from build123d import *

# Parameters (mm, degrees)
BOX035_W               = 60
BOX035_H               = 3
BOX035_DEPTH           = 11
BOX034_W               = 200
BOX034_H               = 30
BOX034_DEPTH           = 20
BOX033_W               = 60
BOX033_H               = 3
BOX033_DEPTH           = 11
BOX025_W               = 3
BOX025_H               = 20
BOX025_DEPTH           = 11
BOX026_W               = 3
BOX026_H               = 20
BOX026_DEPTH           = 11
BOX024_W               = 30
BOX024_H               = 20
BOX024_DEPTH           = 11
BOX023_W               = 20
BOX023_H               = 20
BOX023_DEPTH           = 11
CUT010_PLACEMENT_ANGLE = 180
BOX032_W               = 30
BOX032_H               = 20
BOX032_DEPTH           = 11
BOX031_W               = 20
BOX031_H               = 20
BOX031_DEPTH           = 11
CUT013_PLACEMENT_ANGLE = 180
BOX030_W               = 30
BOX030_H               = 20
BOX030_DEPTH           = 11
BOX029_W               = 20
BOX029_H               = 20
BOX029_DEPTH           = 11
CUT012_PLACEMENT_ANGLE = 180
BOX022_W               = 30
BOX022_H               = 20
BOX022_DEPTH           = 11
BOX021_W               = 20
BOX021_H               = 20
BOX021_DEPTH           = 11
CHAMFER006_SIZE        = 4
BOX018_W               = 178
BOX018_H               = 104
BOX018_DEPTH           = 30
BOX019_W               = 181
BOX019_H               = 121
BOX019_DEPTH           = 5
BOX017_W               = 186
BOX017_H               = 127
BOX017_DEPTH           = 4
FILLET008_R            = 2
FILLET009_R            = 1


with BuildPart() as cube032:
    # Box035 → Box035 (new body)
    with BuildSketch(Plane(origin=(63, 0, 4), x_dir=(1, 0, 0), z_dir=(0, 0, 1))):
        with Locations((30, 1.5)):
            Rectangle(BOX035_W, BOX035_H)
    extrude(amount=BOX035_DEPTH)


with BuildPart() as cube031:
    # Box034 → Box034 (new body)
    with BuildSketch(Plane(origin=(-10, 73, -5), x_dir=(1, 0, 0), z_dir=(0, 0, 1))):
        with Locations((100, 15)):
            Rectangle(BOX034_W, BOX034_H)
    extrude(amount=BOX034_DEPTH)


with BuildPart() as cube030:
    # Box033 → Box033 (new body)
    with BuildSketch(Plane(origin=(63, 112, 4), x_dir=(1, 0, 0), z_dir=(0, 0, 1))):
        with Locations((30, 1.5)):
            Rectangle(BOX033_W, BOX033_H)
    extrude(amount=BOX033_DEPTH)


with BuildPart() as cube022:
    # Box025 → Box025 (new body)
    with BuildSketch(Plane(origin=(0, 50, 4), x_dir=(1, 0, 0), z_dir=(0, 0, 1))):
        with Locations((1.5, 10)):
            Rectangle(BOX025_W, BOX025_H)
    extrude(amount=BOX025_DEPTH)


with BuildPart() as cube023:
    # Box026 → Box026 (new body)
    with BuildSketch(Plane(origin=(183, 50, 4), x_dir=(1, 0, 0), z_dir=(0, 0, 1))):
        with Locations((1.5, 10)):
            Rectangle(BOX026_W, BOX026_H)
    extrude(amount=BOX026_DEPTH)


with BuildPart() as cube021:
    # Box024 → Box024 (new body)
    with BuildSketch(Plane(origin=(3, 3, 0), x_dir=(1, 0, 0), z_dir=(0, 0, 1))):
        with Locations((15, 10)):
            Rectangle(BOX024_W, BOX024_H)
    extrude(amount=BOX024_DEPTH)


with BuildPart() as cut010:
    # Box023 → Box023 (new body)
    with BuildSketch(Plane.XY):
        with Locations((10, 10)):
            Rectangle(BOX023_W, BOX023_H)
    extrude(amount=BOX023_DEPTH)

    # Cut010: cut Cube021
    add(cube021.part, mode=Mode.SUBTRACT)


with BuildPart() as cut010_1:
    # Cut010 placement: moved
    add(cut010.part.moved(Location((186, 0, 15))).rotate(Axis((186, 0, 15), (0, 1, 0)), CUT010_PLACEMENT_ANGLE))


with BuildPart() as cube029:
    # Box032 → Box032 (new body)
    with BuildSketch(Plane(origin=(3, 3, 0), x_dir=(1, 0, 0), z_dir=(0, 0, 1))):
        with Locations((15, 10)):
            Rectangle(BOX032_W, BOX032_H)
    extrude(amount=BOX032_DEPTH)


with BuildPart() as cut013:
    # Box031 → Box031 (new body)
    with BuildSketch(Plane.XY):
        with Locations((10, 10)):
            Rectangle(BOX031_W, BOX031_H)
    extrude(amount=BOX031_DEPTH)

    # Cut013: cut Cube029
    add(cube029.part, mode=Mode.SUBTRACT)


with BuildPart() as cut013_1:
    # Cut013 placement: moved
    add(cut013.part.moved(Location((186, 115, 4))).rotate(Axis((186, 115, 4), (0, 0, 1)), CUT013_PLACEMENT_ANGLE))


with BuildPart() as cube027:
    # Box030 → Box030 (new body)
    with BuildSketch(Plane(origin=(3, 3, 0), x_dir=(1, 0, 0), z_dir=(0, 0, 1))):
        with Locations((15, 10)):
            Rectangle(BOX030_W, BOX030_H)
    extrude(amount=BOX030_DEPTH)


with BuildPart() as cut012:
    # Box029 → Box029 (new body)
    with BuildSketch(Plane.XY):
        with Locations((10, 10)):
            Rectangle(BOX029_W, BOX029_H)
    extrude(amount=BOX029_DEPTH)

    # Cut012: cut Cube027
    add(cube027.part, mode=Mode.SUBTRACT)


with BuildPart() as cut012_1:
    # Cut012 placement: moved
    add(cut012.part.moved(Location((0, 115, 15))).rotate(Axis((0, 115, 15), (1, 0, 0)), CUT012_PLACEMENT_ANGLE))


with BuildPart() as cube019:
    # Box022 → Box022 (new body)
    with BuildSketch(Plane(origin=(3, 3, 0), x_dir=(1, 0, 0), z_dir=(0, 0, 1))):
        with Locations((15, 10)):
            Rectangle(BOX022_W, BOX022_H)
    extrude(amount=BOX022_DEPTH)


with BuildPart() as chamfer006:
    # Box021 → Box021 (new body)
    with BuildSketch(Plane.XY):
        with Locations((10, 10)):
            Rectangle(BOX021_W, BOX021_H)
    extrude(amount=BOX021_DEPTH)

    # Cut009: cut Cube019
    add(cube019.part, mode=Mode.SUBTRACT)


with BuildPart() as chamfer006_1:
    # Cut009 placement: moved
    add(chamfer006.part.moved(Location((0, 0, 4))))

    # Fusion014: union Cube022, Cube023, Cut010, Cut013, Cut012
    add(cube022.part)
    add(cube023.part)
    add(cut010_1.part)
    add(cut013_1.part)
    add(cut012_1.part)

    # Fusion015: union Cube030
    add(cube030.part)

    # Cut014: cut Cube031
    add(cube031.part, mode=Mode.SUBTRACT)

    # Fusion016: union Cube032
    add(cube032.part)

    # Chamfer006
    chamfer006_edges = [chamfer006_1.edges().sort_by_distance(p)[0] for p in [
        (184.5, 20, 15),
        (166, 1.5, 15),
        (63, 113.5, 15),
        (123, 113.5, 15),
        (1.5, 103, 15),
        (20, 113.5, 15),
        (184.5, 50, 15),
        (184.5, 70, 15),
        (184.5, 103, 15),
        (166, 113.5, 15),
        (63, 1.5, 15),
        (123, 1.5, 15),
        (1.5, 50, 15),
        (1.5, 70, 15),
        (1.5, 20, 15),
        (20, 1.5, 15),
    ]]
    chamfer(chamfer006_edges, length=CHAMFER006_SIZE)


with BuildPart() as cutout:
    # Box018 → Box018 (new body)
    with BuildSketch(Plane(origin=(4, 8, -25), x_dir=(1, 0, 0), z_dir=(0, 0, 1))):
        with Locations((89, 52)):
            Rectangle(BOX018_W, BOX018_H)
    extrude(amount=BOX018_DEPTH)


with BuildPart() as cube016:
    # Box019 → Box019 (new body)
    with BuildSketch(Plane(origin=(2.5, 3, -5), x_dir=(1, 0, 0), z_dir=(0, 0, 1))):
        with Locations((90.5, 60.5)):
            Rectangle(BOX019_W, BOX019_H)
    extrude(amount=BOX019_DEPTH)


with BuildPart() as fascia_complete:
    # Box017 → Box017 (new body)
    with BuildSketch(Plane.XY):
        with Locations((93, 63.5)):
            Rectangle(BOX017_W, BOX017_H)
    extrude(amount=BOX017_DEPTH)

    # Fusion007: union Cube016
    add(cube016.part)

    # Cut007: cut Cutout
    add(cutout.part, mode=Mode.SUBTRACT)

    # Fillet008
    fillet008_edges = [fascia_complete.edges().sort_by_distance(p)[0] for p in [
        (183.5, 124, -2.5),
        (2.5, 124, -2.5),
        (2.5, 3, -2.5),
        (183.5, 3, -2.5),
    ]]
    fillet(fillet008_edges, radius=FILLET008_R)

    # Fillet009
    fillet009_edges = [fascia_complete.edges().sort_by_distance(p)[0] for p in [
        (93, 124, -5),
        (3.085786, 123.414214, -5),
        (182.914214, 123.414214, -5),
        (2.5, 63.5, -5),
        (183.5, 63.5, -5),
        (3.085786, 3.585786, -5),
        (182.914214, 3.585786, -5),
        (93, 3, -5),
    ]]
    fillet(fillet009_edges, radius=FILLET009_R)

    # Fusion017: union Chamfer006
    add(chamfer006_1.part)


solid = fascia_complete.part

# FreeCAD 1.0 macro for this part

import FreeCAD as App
import Part
import Sketcher

V = App.Vector
Q = App.Units.Quantity


def edges_at(feature, points):
    """Names of the edges that pass closest to the given points."""
    edges = feature.Shape.Edges
    near = lambda p: min(range(len(edges)), key=lambda i: edges[i].distToShape(Part.Vertex(*p))[0])
    return sorted({f"Edge{near(p) + 1}" for p in points})


def add_polygon(sketch, points):
    """Adds a closed chain of lines whose ends are joined by coincident constraints."""
    first, n = sketch.GeometryCount, len(points)
    for a, b in zip(points, points[1:] + points[:1]):
        sketch.addGeometry(Part.LineSegment(App.Vector(*a, 0), App.Vector(*b, 0)), False)
    for i in range(n):
        sketch.addConstraint(Sketcher.Constraint("Coincident", first + i, 2, first + (i + 1) % n, 1))

doc = App.newDocument("Part")
body = doc.addObject("PartDesign::Body", "Body")

sketch1 = body.newObject("Sketcher::SketchObject", "Sketch")
sketch1.AttachmentSupport = (doc.getObject("XY_Plane"), [""])
sketch1.MapMode = "FlatFace"
sketch1.AttachmentOffset = App.Placement(V(0, 0, 4), App.Rotation())
add_polygon(sketch1, [(63, 3), (63, 0), (123, 0), (123, 3)])
sketch1.addConstraint(Sketcher.Constraint("Vertical", 0))
sketch1.addConstraint(Sketcher.Constraint("Horizontal", 1))
sketch1.addConstraint(Sketcher.Constraint("Vertical", 2))
sketch1.addConstraint(Sketcher.Constraint("Horizontal", 3))
sketch1.addConstraint(Sketcher.Constraint("PointOnObject", 0, 2, -1))
sketch1.addConstraint(Sketcher.Constraint("DistanceX", 1, 1, 1, 2, Q("60 mm")))
sketch1.addConstraint(Sketcher.Constraint("DistanceY", 0, 2, 0, 1, Q("3 mm")))
sketch1.addConstraint(Sketcher.Constraint("DistanceX", -1, 1, 0, 2, Q("63 mm")))
pad1 = body.newObject("PartDesign::Pad", "Pad")
pad1.Profile = sketch1
pad1.Length = 11
body2 = doc.addObject("PartDesign::Body", "Body001")

sketch2 = body2.newObject("Sketcher::SketchObject", "Sketch001")
sketch2.AttachmentSupport = (doc.getObject("XY_Plane001"), [""])
sketch2.MapMode = "FlatFace"
sketch2.AttachmentOffset = App.Placement(V(0, 0, -5), App.Rotation())
add_polygon(sketch2, [(-10, 103), (-10, 73), (190, 73), (190, 103)])
sketch2.addConstraint(Sketcher.Constraint("Vertical", 0))
sketch2.addConstraint(Sketcher.Constraint("Horizontal", 1))
sketch2.addConstraint(Sketcher.Constraint("Vertical", 2))
sketch2.addConstraint(Sketcher.Constraint("Horizontal", 3))
sketch2.addConstraint(Sketcher.Constraint("DistanceX", 1, 1, 1, 2, Q("200 mm")))
sketch2.addConstraint(Sketcher.Constraint("DistanceY", 0, 2, 0, 1, Q("30 mm")))
sketch2.addConstraint(Sketcher.Constraint("DistanceX", 0, 2, -1, 1, Q("10 mm")))
sketch2.addConstraint(Sketcher.Constraint("DistanceY", -1, 1, 0, 2, Q("73 mm")))
pad2 = body2.newObject("PartDesign::Pad", "Pad001")
pad2.Profile = sketch2
pad2.Length = 20
body3 = doc.addObject("PartDesign::Body", "Body002")

sketch3 = body3.newObject("Sketcher::SketchObject", "Sketch002")
sketch3.AttachmentSupport = (doc.getObject("XY_Plane002"), [""])
sketch3.MapMode = "FlatFace"
sketch3.AttachmentOffset = App.Placement(V(0, 0, 4), App.Rotation())
add_polygon(sketch3, [(63, 115), (63, 112), (123, 112), (123, 115)])
sketch3.addConstraint(Sketcher.Constraint("Vertical", 0))
sketch3.addConstraint(Sketcher.Constraint("Horizontal", 1))
sketch3.addConstraint(Sketcher.Constraint("Vertical", 2))
sketch3.addConstraint(Sketcher.Constraint("Horizontal", 3))
sketch3.addConstraint(Sketcher.Constraint("DistanceX", 1, 1, 1, 2, Q("60 mm")))
sketch3.addConstraint(Sketcher.Constraint("DistanceY", 0, 2, 0, 1, Q("3 mm")))
sketch3.addConstraint(Sketcher.Constraint("DistanceX", -1, 1, 0, 2, Q("63 mm")))
sketch3.addConstraint(Sketcher.Constraint("DistanceY", -1, 1, 0, 2, Q("112 mm")))
pad3 = body3.newObject("PartDesign::Pad", "Pad002")
pad3.Profile = sketch3
pad3.Length = 11
body4 = doc.addObject("PartDesign::Body", "Body003")

sketch4 = body4.newObject("Sketcher::SketchObject", "Sketch003")
sketch4.AttachmentSupport = (doc.getObject("XY_Plane003"), [""])
sketch4.MapMode = "FlatFace"
sketch4.AttachmentOffset = App.Placement(V(0, 0, 4), App.Rotation())
add_polygon(sketch4, [(0, 70), (0, 50), (3, 50), (3, 70)])
sketch4.addConstraint(Sketcher.Constraint("Vertical", 0))
sketch4.addConstraint(Sketcher.Constraint("Horizontal", 1))
sketch4.addConstraint(Sketcher.Constraint("Vertical", 2))
sketch4.addConstraint(Sketcher.Constraint("Horizontal", 3))
sketch4.addConstraint(Sketcher.Constraint("PointOnObject", 0, 2, -2))
sketch4.addConstraint(Sketcher.Constraint("DistanceX", 1, 1, 1, 2, Q("3 mm")))
sketch4.addConstraint(Sketcher.Constraint("DistanceY", 0, 2, 0, 1, Q("20 mm")))
sketch4.addConstraint(Sketcher.Constraint("DistanceY", -1, 1, 0, 2, Q("50 mm")))
pad4 = body4.newObject("PartDesign::Pad", "Pad003")
pad4.Profile = sketch4
pad4.Length = 11
body5 = doc.addObject("PartDesign::Body", "Body004")

sketch5 = body5.newObject("Sketcher::SketchObject", "Sketch004")
sketch5.AttachmentSupport = (doc.getObject("XY_Plane004"), [""])
sketch5.MapMode = "FlatFace"
sketch5.AttachmentOffset = App.Placement(V(0, 0, 4), App.Rotation())
add_polygon(sketch5, [(183, 70), (183, 50), (186, 50), (186, 70)])
sketch5.addConstraint(Sketcher.Constraint("Vertical", 0))
sketch5.addConstraint(Sketcher.Constraint("Horizontal", 1))
sketch5.addConstraint(Sketcher.Constraint("Vertical", 2))
sketch5.addConstraint(Sketcher.Constraint("Horizontal", 3))
sketch5.addConstraint(Sketcher.Constraint("DistanceX", 1, 1, 1, 2, Q("3 mm")))
sketch5.addConstraint(Sketcher.Constraint("DistanceY", 0, 2, 0, 1, Q("20 mm")))
sketch5.addConstraint(Sketcher.Constraint("DistanceX", -1, 1, 0, 2, Q("183 mm")))
sketch5.addConstraint(Sketcher.Constraint("DistanceY", -1, 1, 0, 2, Q("50 mm")))
pad5 = body5.newObject("PartDesign::Pad", "Pad004")
pad5.Profile = sketch5
pad5.Length = 11
body6 = doc.addObject("PartDesign::Body", "Body005")

sketch6 = body6.newObject("Sketcher::SketchObject", "Sketch005")
sketch6.AttachmentSupport = (doc.getObject("XY_Plane005"), [""])
sketch6.MapMode = "FlatFace"
add_polygon(sketch6, [(3, 23), (3, 3), (33, 3), (33, 23)])
sketch6.addConstraint(Sketcher.Constraint("Vertical", 0))
sketch6.addConstraint(Sketcher.Constraint("Horizontal", 1))
sketch6.addConstraint(Sketcher.Constraint("Vertical", 2))
sketch6.addConstraint(Sketcher.Constraint("Horizontal", 3))
sketch6.addConstraint(Sketcher.Constraint("DistanceX", 1, 1, 1, 2, Q("30 mm")))
sketch6.addConstraint(Sketcher.Constraint("DistanceY", 0, 2, 0, 1, Q("20 mm")))
sketch6.addConstraint(Sketcher.Constraint("DistanceX", -1, 1, 0, 2, Q("3 mm")))
sketch6.addConstraint(Sketcher.Constraint("DistanceY", -1, 1, 0, 2, Q("3 mm")))
pad6 = body6.newObject("PartDesign::Pad", "Pad005")
pad6.Profile = sketch6
pad6.Length = 11
body7 = doc.addObject("PartDesign::Body", "Body006")

sketch7 = body7.newObject("Sketcher::SketchObject", "Sketch006")
sketch7.AttachmentSupport = (doc.getObject("XY_Plane006"), [""])
sketch7.MapMode = "FlatFace"
add_polygon(sketch7, [(0, 20), (0, 0), (20, 0), (20, 20)])
sketch7.addConstraint(Sketcher.Constraint("Vertical", 0))
sketch7.addConstraint(Sketcher.Constraint("Horizontal", 1))
sketch7.addConstraint(Sketcher.Constraint("Vertical", 2))
sketch7.addConstraint(Sketcher.Constraint("Horizontal", 3))
sketch7.addConstraint(Sketcher.Constraint("Coincident", 0, 2, -1, 1))
sketch7.addConstraint(Sketcher.Constraint("Equal", 3, 0))
sketch7.addConstraint(Sketcher.Constraint("DistanceX", 1, 1, 1, 2, Q("20 mm")))
pad7 = body7.newObject("PartDesign::Pad", "Pad006")
pad7.Profile = sketch7
pad7.Length = 11
doc.recompute()

boolean = body7.newObject("PartDesign::Boolean", "Boolean")
boolean.Type = "Cut"
boolean.addObjects([body6])
body8 = doc.addObject("PartDesign::Body", "Body007")
doc.recompute()

body7.Placement = App.Placement(V(186, 0, 15), App.Rotation(V(0, 1, 0), 180))
boolean2 = body8.newObject("PartDesign::Boolean", "Boolean001")
boolean2.Type = "Fuse"
boolean2.addObjects([body7])
body9 = doc.addObject("PartDesign::Body", "Body008")

sketch8 = body9.newObject("Sketcher::SketchObject", "Sketch007")
sketch8.AttachmentSupport = (doc.getObject("XY_Plane008"), [""])
sketch8.MapMode = "FlatFace"
add_polygon(sketch8, [(3, 23), (3, 3), (33, 3), (33, 23)])
sketch8.addConstraint(Sketcher.Constraint("Vertical", 0))
sketch8.addConstraint(Sketcher.Constraint("Horizontal", 1))
sketch8.addConstraint(Sketcher.Constraint("Vertical", 2))
sketch8.addConstraint(Sketcher.Constraint("Horizontal", 3))
sketch8.addConstraint(Sketcher.Constraint("DistanceX", 1, 1, 1, 2, Q("30 mm")))
sketch8.addConstraint(Sketcher.Constraint("DistanceY", 0, 2, 0, 1, Q("20 mm")))
sketch8.addConstraint(Sketcher.Constraint("DistanceX", -1, 1, 0, 2, Q("3 mm")))
sketch8.addConstraint(Sketcher.Constraint("DistanceY", -1, 1, 0, 2, Q("3 mm")))
pad8 = body9.newObject("PartDesign::Pad", "Pad007")
pad8.Profile = sketch8
pad8.Length = 11
body10 = doc.addObject("PartDesign::Body", "Body009")

sketch9 = body10.newObject("Sketcher::SketchObject", "Sketch008")
sketch9.AttachmentSupport = (doc.getObject("XY_Plane009"), [""])
sketch9.MapMode = "FlatFace"
add_polygon(sketch9, [(0, 20), (0, 0), (20, 0), (20, 20)])
sketch9.addConstraint(Sketcher.Constraint("Vertical", 0))
sketch9.addConstraint(Sketcher.Constraint("Horizontal", 1))
sketch9.addConstraint(Sketcher.Constraint("Vertical", 2))
sketch9.addConstraint(Sketcher.Constraint("Horizontal", 3))
sketch9.addConstraint(Sketcher.Constraint("Coincident", 0, 2, -1, 1))
sketch9.addConstraint(Sketcher.Constraint("Equal", 3, 0))
sketch9.addConstraint(Sketcher.Constraint("DistanceX", 1, 1, 1, 2, Q("20 mm")))
pad9 = body10.newObject("PartDesign::Pad", "Pad008")
pad9.Profile = sketch9
pad9.Length = 11
doc.recompute()

boolean3 = body10.newObject("PartDesign::Boolean", "Boolean002")
boolean3.Type = "Cut"
boolean3.addObjects([body9])
body11 = doc.addObject("PartDesign::Body", "Body010")
doc.recompute()

body10.Placement = App.Placement(V(186, 115, 4), App.Rotation(V(0, 0, 1), 180))
boolean4 = body11.newObject("PartDesign::Boolean", "Boolean003")
boolean4.Type = "Fuse"
boolean4.addObjects([body10])
body12 = doc.addObject("PartDesign::Body", "Body011")

sketch10 = body12.newObject("Sketcher::SketchObject", "Sketch009")
sketch10.AttachmentSupport = (doc.getObject("XY_Plane011"), [""])
sketch10.MapMode = "FlatFace"
add_polygon(sketch10, [(3, 23), (3, 3), (33, 3), (33, 23)])
sketch10.addConstraint(Sketcher.Constraint("Vertical", 0))
sketch10.addConstraint(Sketcher.Constraint("Horizontal", 1))
sketch10.addConstraint(Sketcher.Constraint("Vertical", 2))
sketch10.addConstraint(Sketcher.Constraint("Horizontal", 3))
sketch10.addConstraint(Sketcher.Constraint("DistanceX", 1, 1, 1, 2, Q("30 mm")))
sketch10.addConstraint(Sketcher.Constraint("DistanceY", 0, 2, 0, 1, Q("20 mm")))
sketch10.addConstraint(Sketcher.Constraint("DistanceX", -1, 1, 0, 2, Q("3 mm")))
sketch10.addConstraint(Sketcher.Constraint("DistanceY", -1, 1, 0, 2, Q("3 mm")))
pad10 = body12.newObject("PartDesign::Pad", "Pad009")
pad10.Profile = sketch10
pad10.Length = 11
body13 = doc.addObject("PartDesign::Body", "Body012")

sketch11 = body13.newObject("Sketcher::SketchObject", "Sketch010")
sketch11.AttachmentSupport = (doc.getObject("XY_Plane012"), [""])
sketch11.MapMode = "FlatFace"
add_polygon(sketch11, [(0, 20), (0, 0), (20, 0), (20, 20)])
sketch11.addConstraint(Sketcher.Constraint("Vertical", 0))
sketch11.addConstraint(Sketcher.Constraint("Horizontal", 1))
sketch11.addConstraint(Sketcher.Constraint("Vertical", 2))
sketch11.addConstraint(Sketcher.Constraint("Horizontal", 3))
sketch11.addConstraint(Sketcher.Constraint("Coincident", 0, 2, -1, 1))
sketch11.addConstraint(Sketcher.Constraint("Equal", 3, 0))
sketch11.addConstraint(Sketcher.Constraint("DistanceX", 1, 1, 1, 2, Q("20 mm")))
pad11 = body13.newObject("PartDesign::Pad", "Pad010")
pad11.Profile = sketch11
pad11.Length = 11
doc.recompute()

boolean5 = body13.newObject("PartDesign::Boolean", "Boolean004")
boolean5.Type = "Cut"
boolean5.addObjects([body12])
body14 = doc.addObject("PartDesign::Body", "Body013")
doc.recompute()

body13.Placement = App.Placement(V(0, 115, 15), App.Rotation(V(1, 0, 0), 180))
boolean6 = body14.newObject("PartDesign::Boolean", "Boolean005")
boolean6.Type = "Fuse"
boolean6.addObjects([body13])
body15 = doc.addObject("PartDesign::Body", "Body014")

sketch12 = body15.newObject("Sketcher::SketchObject", "Sketch011")
sketch12.AttachmentSupport = (doc.getObject("XY_Plane014"), [""])
sketch12.MapMode = "FlatFace"
add_polygon(sketch12, [(3, 23), (3, 3), (33, 3), (33, 23)])
sketch12.addConstraint(Sketcher.Constraint("Vertical", 0))
sketch12.addConstraint(Sketcher.Constraint("Horizontal", 1))
sketch12.addConstraint(Sketcher.Constraint("Vertical", 2))
sketch12.addConstraint(Sketcher.Constraint("Horizontal", 3))
sketch12.addConstraint(Sketcher.Constraint("DistanceX", 1, 1, 1, 2, Q("30 mm")))
sketch12.addConstraint(Sketcher.Constraint("DistanceY", 0, 2, 0, 1, Q("20 mm")))
sketch12.addConstraint(Sketcher.Constraint("DistanceX", -1, 1, 0, 2, Q("3 mm")))
sketch12.addConstraint(Sketcher.Constraint("DistanceY", -1, 1, 0, 2, Q("3 mm")))
pad12 = body15.newObject("PartDesign::Pad", "Pad011")
pad12.Profile = sketch12
pad12.Length = 11
body16 = doc.addObject("PartDesign::Body", "Body015")

sketch13 = body16.newObject("Sketcher::SketchObject", "Sketch012")
sketch13.AttachmentSupport = (doc.getObject("XY_Plane015"), [""])
sketch13.MapMode = "FlatFace"
add_polygon(sketch13, [(0, 20), (0, 0), (20, 0), (20, 20)])
sketch13.addConstraint(Sketcher.Constraint("Vertical", 0))
sketch13.addConstraint(Sketcher.Constraint("Horizontal", 1))
sketch13.addConstraint(Sketcher.Constraint("Vertical", 2))
sketch13.addConstraint(Sketcher.Constraint("Horizontal", 3))
sketch13.addConstraint(Sketcher.Constraint("Coincident", 0, 2, -1, 1))
sketch13.addConstraint(Sketcher.Constraint("Equal", 3, 0))
sketch13.addConstraint(Sketcher.Constraint("DistanceX", 1, 1, 1, 2, Q("20 mm")))
pad13 = body16.newObject("PartDesign::Pad", "Pad012")
pad13.Profile = sketch13
pad13.Length = 11
doc.recompute()

boolean7 = body16.newObject("PartDesign::Boolean", "Boolean006")
boolean7.Type = "Cut"
boolean7.addObjects([body15])
body17 = doc.addObject("PartDesign::Body", "Body016")
body17.AllowCompound = True
doc.recompute()

body16.Placement = App.Placement(V(0, 0, 4), App.Rotation(V(0, 0, 1), 0))
boolean8 = body17.newObject("PartDesign::Boolean", "Boolean007")
boolean8.Type = "Fuse"
boolean8.addObjects([body16])
doc.recompute()

boolean9 = body17.newObject("PartDesign::Boolean", "Boolean008")
boolean9.Type = "Fuse"
boolean9.addObjects([body4])
doc.recompute()

boolean10 = body17.newObject("PartDesign::Boolean", "Boolean009")
boolean10.Type = "Fuse"
boolean10.addObjects([body5])
doc.recompute()

boolean11 = body17.newObject("PartDesign::Boolean", "Boolean010")
boolean11.Type = "Fuse"
boolean11.addObjects([body8])
doc.recompute()

boolean12 = body17.newObject("PartDesign::Boolean", "Boolean011")
boolean12.Type = "Fuse"
boolean12.addObjects([body11])
doc.recompute()

boolean13 = body17.newObject("PartDesign::Boolean", "Boolean012")
boolean13.Type = "Fuse"
boolean13.addObjects([body14])
doc.recompute()

boolean14 = body17.newObject("PartDesign::Boolean", "Boolean013")
boolean14.Type = "Fuse"
boolean14.addObjects([body3])
doc.recompute()

boolean15 = body17.newObject("PartDesign::Boolean", "Boolean014")
boolean15.Type = "Cut"
boolean15.addObjects([body2])
doc.recompute()

boolean16 = body17.newObject("PartDesign::Boolean", "Boolean015")
boolean16.Type = "Fuse"
boolean16.addObjects([body])
doc.recompute()

chamfer = body17.newObject("PartDesign::Chamfer", "Chamfer")
chamfer.Base = (boolean16, edges_at(boolean16, [
    (184.5, 20, 15),
    (166, 1.5, 15),
    (63, 113.5, 15),
    (123, 113.5, 15),
    (1.5, 103, 15),
    (20, 113.5, 15),
    (184.5, 50, 15),
    (184.5, 70, 15),
    (184.5, 103, 15),
    (166, 113.5, 15),
    (63, 1.5, 15),
    (123, 1.5, 15),
    (1.5, 50, 15),
    (1.5, 70, 15),
    (1.5, 20, 15),
    (20, 1.5, 15),
]))
chamfer.Size = 4
body18 = doc.addObject("PartDesign::Body", "Body017")

sketch14 = body18.newObject("Sketcher::SketchObject", "Sketch013")
sketch14.AttachmentSupport = (doc.getObject("XY_Plane017"), [""])
sketch14.MapMode = "FlatFace"
sketch14.AttachmentOffset = App.Placement(V(0, 0, -25), App.Rotation())
add_polygon(sketch14, [(4, 112), (4, 8), (182, 8), (182, 112)])
sketch14.addConstraint(Sketcher.Constraint("Vertical", 0))
sketch14.addConstraint(Sketcher.Constraint("Horizontal", 1))
sketch14.addConstraint(Sketcher.Constraint("Vertical", 2))
sketch14.addConstraint(Sketcher.Constraint("Horizontal", 3))
sketch14.addConstraint(Sketcher.Constraint("DistanceX", 1, 1, 1, 2, Q("178 mm")))
sketch14.addConstraint(Sketcher.Constraint("DistanceY", 0, 2, 0, 1, Q("104 mm")))
sketch14.addConstraint(Sketcher.Constraint("DistanceX", -1, 1, 0, 2, Q("4 mm")))
sketch14.addConstraint(Sketcher.Constraint("DistanceY", -1, 1, 0, 2, Q("8 mm")))
pad14 = body18.newObject("PartDesign::Pad", "Pad013")
pad14.Profile = sketch14
pad14.Length = 30
body19 = doc.addObject("PartDesign::Body", "Body018")

sketch15 = body19.newObject("Sketcher::SketchObject", "Sketch014")
sketch15.AttachmentSupport = (doc.getObject("XY_Plane018"), [""])
sketch15.MapMode = "FlatFace"
sketch15.AttachmentOffset = App.Placement(V(0, 0, -5), App.Rotation())
add_polygon(sketch15, [(2.5, 124), (2.5, 3), (183.5, 3), (183.5, 124)])
sketch15.addConstraint(Sketcher.Constraint("Vertical", 0))
sketch15.addConstraint(Sketcher.Constraint("Horizontal", 1))
sketch15.addConstraint(Sketcher.Constraint("Vertical", 2))
sketch15.addConstraint(Sketcher.Constraint("Horizontal", 3))
sketch15.addConstraint(Sketcher.Constraint("DistanceX", 1, 1, 1, 2, Q("181 mm")))
sketch15.addConstraint(Sketcher.Constraint("DistanceY", 0, 2, 0, 1, Q("121 mm")))
sketch15.addConstraint(Sketcher.Constraint("DistanceY", -1, 1, 0, 2, Q("3 mm")))
sketch15.addConstraint(Sketcher.Constraint("DistanceX", -1, 1, 0, 2, Q("2.5 mm")))
pad15 = body19.newObject("PartDesign::Pad", "Pad014")
pad15.Profile = sketch15
pad15.Length = 5
body20 = doc.addObject("PartDesign::Body", "Body019")

sketch16 = body20.newObject("Sketcher::SketchObject", "Sketch015")
sketch16.AttachmentSupport = (doc.getObject("XY_Plane019"), [""])
sketch16.MapMode = "FlatFace"
add_polygon(sketch16, [(0, 127), (0, 0), (186, 0), (186, 127)])
sketch16.addConstraint(Sketcher.Constraint("Vertical", 0))
sketch16.addConstraint(Sketcher.Constraint("Horizontal", 1))
sketch16.addConstraint(Sketcher.Constraint("Vertical", 2))
sketch16.addConstraint(Sketcher.Constraint("Horizontal", 3))
sketch16.addConstraint(Sketcher.Constraint("Coincident", 0, 2, -1, 1))
sketch16.addConstraint(Sketcher.Constraint("DistanceX", 1, 1, 1, 2, Q("186 mm")))
sketch16.addConstraint(Sketcher.Constraint("DistanceY", 0, 2, 0, 1, Q("127 mm")))
pad16 = body20.newObject("PartDesign::Pad", "Pad015")
pad16.Profile = sketch16
pad16.Length = 4
doc.recompute()

boolean17 = body20.newObject("PartDesign::Boolean", "Boolean016")
boolean17.Type = "Fuse"
boolean17.addObjects([body19])
doc.recompute()

boolean18 = body20.newObject("PartDesign::Boolean", "Boolean017")
boolean18.Type = "Cut"
boolean18.addObjects([body18])
doc.recompute()

fillet = body20.newObject("PartDesign::Fillet", "Fillet")
fillet.Base = (boolean18, edges_at(boolean18, [
    (183.5, 124, -2.5),
    (2.5, 124, -2.5),
    (2.5, 3, -2.5),
    (183.5, 3, -2.5),
]))
fillet.Radius = 2
doc.recompute()

fillet2 = body20.newObject("PartDesign::Fillet", "Fillet001")
fillet2.Base = (fillet, edges_at(fillet, [
    (93, 124, -5),
    (3.086, 123.414, -5),
    (182.914, 123.414, -5),
    (2.5, 63.5, -5),
    (183.5, 63.5, -5),
    (3.086, 3.586, -5),
    (182.914, 3.586, -5),
    (93, 3, -5),
]))
fillet2.Radius = 1
doc.recompute()

boolean19 = body20.newObject("PartDesign::Boolean", "Boolean018")
boolean19.Type = "Fuse"
boolean19.addObjects([body17])

doc.recompute()
